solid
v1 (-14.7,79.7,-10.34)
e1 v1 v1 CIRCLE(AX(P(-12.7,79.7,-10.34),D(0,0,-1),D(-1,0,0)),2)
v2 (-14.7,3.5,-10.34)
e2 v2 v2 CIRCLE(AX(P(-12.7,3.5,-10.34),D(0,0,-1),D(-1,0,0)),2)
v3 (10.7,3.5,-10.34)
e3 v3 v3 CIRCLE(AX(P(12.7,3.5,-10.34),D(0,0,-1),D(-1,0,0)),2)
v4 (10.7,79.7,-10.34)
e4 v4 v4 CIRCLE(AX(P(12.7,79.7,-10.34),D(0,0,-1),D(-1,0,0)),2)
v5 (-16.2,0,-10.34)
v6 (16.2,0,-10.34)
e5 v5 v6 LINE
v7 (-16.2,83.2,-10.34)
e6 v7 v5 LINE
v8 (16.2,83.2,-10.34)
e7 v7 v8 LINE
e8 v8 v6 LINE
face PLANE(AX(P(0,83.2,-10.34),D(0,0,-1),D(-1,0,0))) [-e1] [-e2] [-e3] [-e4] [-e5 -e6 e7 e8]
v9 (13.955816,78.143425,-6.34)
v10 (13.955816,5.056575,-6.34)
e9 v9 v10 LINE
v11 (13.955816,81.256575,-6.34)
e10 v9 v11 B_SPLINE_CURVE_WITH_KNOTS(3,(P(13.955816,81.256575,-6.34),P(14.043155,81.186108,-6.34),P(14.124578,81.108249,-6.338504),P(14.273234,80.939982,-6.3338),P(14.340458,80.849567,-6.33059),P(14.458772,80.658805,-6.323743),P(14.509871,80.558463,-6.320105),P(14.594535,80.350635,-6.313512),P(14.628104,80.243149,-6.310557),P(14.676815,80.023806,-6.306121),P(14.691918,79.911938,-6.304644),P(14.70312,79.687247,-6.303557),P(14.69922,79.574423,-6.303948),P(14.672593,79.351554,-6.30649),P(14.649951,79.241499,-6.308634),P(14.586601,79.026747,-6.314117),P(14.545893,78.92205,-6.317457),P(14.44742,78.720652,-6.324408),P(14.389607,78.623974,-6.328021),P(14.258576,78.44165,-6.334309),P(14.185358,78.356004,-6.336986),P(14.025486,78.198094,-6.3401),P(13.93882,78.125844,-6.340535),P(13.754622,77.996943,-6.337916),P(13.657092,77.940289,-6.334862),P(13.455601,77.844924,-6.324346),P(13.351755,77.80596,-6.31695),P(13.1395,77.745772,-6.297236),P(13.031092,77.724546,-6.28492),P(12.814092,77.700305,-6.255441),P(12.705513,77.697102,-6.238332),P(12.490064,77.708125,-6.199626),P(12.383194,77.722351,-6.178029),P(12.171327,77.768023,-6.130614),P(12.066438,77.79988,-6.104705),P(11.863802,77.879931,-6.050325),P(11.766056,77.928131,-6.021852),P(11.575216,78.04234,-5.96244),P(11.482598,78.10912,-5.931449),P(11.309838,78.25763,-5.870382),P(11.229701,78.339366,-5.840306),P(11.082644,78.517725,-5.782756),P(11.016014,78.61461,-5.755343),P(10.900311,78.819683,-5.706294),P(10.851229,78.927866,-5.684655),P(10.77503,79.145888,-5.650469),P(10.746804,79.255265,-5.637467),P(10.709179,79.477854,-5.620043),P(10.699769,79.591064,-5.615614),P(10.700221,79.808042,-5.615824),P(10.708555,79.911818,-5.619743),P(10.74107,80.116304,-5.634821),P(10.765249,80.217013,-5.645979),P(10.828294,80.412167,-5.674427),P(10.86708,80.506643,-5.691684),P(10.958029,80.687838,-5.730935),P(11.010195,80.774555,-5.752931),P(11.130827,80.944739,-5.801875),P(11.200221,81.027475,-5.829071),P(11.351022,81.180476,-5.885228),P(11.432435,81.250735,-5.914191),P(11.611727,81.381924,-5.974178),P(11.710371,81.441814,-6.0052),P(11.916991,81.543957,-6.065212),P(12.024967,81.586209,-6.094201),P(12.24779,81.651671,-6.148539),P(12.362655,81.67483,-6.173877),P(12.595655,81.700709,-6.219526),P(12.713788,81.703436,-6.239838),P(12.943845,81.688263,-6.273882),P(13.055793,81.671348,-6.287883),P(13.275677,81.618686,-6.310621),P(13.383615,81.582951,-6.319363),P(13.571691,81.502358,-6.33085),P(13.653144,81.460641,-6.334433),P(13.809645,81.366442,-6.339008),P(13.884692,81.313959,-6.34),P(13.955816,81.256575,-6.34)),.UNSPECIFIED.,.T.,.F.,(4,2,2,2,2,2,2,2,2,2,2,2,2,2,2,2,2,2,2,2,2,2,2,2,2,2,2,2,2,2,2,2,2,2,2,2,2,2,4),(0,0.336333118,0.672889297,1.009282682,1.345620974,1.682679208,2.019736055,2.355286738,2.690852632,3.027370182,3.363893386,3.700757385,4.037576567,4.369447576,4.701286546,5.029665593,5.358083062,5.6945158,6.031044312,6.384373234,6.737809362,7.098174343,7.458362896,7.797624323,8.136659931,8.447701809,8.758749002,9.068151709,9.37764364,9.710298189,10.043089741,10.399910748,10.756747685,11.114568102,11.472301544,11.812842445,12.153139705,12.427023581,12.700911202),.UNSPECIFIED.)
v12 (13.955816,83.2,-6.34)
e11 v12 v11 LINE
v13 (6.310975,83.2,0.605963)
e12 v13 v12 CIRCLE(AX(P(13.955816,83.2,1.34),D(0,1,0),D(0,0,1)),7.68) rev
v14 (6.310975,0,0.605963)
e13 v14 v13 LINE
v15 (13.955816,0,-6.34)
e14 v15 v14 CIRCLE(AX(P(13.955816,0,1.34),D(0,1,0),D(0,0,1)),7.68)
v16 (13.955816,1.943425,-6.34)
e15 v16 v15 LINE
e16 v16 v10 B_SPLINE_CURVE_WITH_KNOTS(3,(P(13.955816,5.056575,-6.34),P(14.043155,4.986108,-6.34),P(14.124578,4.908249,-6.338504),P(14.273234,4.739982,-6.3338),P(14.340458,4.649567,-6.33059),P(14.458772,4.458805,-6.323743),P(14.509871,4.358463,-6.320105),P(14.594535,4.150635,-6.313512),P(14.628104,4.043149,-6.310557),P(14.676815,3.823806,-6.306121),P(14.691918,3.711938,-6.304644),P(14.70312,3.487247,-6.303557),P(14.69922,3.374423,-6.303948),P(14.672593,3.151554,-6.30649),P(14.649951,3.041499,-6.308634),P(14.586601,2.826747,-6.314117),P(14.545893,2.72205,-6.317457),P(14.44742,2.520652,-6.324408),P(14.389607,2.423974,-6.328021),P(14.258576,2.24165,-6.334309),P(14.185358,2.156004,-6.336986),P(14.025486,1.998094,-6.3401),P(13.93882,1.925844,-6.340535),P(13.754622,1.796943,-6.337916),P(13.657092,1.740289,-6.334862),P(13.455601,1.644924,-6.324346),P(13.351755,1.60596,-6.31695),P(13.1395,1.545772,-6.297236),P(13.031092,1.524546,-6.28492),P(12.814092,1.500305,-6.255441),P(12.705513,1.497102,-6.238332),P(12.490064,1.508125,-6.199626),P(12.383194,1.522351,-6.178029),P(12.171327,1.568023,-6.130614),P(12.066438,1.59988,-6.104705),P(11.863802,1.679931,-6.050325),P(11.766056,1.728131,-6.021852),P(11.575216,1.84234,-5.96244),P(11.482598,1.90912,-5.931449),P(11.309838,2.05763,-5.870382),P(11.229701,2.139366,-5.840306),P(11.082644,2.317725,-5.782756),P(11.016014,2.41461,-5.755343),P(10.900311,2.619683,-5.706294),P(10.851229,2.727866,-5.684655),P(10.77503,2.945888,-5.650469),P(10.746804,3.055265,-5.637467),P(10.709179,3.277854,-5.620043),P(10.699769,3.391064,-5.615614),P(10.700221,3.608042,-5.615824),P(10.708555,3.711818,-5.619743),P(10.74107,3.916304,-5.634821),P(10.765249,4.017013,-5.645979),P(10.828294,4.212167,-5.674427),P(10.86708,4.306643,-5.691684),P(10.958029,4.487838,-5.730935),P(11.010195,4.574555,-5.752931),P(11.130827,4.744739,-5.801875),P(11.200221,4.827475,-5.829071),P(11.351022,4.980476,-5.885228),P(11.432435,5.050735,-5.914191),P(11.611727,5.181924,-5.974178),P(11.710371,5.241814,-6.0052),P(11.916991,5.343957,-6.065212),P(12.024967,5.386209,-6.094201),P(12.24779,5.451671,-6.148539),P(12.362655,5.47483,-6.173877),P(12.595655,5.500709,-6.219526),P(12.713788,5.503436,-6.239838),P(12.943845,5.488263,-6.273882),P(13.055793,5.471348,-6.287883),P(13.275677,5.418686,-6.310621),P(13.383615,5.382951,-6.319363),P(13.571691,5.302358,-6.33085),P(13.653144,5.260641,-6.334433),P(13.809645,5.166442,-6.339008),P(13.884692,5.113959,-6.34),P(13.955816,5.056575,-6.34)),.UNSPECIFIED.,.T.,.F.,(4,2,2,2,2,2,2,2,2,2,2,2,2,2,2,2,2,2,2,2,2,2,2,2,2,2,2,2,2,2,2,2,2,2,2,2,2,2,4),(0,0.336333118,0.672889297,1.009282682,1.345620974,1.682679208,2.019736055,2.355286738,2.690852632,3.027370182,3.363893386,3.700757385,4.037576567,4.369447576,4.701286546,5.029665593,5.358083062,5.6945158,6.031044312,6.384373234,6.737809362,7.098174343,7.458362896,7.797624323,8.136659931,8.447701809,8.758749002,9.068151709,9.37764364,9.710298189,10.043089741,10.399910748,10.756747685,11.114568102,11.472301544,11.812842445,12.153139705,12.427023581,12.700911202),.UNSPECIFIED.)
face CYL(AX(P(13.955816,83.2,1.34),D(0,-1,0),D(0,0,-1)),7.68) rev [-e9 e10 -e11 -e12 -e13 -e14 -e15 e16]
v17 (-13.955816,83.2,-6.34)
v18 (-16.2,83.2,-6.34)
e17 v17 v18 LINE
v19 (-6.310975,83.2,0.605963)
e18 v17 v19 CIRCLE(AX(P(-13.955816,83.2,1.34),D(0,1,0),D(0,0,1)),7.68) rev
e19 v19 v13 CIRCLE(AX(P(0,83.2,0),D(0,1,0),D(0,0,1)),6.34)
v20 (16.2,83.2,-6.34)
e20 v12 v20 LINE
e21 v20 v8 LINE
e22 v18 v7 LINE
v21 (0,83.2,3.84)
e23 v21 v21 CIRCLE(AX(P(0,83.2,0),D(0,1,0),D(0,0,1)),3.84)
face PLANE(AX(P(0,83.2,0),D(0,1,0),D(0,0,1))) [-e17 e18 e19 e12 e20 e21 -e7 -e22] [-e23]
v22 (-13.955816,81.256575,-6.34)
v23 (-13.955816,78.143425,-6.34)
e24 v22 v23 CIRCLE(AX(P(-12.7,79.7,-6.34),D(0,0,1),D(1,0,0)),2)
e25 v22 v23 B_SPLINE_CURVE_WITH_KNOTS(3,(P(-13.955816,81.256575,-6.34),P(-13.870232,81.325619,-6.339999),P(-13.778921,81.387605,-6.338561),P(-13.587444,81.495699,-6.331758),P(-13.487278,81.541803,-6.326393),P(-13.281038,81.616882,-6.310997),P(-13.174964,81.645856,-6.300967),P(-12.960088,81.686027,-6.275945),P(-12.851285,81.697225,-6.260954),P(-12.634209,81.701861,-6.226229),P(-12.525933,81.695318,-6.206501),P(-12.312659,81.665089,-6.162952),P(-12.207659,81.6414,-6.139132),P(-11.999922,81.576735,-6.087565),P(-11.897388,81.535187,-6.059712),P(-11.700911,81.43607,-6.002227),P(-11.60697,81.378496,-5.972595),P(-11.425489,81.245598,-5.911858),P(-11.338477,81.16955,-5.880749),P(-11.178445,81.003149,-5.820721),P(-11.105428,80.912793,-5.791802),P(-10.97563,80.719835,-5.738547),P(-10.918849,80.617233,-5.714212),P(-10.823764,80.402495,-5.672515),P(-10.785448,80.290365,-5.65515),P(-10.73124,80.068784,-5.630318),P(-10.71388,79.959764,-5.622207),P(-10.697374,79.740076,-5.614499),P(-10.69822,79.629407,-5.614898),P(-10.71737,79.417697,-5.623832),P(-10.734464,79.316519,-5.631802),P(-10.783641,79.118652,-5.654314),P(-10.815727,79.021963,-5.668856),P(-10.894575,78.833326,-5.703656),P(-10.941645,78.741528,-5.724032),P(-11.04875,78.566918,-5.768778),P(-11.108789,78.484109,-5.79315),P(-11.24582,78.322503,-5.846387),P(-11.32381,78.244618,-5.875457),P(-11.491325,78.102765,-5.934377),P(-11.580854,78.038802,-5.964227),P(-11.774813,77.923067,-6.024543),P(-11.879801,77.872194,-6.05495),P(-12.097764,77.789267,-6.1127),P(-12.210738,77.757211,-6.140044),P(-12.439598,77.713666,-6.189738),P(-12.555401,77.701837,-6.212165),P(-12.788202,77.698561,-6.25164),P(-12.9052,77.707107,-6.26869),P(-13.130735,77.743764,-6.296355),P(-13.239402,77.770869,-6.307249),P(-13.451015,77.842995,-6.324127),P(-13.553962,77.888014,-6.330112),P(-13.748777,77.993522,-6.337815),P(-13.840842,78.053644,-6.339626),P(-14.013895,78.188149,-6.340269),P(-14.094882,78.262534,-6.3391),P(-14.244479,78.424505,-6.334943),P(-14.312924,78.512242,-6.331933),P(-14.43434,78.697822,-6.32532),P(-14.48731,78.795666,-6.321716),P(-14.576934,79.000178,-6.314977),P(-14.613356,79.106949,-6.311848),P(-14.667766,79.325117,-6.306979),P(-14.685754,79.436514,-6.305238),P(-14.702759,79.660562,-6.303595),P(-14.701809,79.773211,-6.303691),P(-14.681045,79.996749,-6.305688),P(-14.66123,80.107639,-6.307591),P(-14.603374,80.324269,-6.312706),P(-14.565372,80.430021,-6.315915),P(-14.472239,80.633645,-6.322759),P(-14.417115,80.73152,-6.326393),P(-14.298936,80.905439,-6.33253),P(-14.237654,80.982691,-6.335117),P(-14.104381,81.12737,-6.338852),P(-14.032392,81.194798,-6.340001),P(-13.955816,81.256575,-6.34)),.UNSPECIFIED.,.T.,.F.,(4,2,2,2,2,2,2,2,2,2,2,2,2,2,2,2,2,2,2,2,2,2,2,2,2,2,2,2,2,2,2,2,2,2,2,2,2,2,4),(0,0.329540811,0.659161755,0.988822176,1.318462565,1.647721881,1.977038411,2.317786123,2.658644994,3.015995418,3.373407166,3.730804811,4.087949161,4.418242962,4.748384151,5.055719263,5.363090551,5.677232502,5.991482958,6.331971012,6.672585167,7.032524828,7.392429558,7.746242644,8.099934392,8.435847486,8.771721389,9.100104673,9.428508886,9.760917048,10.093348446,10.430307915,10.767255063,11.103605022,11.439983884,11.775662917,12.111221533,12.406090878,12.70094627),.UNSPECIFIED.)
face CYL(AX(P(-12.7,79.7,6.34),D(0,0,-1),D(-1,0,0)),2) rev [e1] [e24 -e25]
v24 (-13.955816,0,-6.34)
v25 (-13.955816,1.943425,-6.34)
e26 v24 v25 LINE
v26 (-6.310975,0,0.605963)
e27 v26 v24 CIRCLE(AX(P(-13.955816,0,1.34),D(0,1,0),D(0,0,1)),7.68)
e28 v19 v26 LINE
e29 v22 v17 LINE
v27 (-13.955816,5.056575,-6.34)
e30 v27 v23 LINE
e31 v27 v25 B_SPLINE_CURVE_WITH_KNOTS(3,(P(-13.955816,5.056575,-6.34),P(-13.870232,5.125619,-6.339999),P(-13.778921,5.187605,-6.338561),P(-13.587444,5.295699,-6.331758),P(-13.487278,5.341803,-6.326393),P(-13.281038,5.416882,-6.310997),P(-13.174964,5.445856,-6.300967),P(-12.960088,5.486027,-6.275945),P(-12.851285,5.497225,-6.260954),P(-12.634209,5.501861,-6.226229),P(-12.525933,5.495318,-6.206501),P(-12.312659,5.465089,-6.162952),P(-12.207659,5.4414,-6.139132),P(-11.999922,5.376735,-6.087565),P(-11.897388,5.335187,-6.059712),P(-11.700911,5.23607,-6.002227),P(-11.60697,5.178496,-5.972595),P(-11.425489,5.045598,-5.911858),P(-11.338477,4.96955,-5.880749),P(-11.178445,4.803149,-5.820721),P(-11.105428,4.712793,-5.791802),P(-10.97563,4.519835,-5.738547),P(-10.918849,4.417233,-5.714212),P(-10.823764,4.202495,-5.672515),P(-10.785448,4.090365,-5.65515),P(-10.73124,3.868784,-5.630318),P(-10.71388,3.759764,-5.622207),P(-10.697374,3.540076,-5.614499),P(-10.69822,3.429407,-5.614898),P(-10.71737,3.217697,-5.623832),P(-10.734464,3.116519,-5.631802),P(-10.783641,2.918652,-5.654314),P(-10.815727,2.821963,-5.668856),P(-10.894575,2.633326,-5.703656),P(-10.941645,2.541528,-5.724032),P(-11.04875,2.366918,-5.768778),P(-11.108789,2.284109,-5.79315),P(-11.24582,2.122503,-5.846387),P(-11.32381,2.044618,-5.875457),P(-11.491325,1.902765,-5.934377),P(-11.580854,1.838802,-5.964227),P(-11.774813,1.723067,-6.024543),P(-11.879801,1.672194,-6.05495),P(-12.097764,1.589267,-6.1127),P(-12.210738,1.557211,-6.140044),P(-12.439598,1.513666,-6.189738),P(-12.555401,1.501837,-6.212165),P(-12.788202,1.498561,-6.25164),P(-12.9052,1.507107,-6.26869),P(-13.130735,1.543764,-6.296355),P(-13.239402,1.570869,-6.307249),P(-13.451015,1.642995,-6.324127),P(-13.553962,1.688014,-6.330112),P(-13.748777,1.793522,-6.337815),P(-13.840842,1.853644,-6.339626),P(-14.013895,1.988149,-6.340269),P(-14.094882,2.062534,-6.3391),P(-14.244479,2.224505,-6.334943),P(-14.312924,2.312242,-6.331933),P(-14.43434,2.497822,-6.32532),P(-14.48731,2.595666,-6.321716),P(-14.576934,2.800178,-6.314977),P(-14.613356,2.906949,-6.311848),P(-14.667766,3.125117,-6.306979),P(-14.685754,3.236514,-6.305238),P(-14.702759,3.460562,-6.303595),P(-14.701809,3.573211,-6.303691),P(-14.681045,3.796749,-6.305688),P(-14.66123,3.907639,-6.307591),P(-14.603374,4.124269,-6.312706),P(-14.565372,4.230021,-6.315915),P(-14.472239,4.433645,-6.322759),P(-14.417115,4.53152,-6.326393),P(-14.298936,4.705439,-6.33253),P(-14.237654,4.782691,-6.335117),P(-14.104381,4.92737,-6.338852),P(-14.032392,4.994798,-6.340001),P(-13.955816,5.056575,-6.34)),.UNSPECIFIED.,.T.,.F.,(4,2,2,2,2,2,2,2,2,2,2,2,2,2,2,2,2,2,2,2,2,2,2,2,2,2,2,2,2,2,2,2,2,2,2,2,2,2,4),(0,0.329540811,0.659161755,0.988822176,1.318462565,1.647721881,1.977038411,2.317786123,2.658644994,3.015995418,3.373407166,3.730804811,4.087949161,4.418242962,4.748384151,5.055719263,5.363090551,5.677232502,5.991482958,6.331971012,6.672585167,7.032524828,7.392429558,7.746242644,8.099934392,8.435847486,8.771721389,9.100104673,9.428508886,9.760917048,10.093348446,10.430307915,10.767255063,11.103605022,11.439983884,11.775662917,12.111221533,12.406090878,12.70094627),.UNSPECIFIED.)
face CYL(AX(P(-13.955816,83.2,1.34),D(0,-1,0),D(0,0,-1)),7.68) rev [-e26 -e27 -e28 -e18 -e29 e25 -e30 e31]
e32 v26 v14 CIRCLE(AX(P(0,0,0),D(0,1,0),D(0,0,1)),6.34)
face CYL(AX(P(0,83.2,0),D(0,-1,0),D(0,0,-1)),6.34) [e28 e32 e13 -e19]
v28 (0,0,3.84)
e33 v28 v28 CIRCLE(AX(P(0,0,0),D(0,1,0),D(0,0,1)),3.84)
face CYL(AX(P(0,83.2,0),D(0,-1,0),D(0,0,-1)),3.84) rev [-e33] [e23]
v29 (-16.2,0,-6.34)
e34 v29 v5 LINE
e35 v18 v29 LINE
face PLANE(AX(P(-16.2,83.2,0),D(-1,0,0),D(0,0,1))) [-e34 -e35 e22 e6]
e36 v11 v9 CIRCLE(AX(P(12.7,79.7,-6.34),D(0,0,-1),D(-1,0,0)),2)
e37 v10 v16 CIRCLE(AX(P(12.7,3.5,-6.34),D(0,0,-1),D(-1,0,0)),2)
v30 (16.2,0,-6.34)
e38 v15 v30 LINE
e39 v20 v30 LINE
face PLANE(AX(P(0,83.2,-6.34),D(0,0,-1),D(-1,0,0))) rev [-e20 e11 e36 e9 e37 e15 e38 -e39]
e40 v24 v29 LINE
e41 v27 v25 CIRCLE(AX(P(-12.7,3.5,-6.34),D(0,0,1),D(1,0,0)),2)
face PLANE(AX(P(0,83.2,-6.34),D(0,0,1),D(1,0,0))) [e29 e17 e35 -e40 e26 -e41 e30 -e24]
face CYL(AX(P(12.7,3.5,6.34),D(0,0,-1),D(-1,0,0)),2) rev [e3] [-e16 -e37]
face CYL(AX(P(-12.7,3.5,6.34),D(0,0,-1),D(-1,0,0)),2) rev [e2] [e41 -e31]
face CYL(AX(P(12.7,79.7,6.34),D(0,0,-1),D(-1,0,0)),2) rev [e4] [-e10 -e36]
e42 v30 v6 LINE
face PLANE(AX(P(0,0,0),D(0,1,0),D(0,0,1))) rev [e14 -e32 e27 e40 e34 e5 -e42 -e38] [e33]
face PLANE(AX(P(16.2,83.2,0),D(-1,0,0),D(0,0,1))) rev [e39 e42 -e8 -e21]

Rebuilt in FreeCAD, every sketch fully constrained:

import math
import FreeCAD as App
import Part
import Sketcher
Q = App.Units.Quantity


def edges_at(feature, points):
    """Names of the edges that pass closest to the given points."""
    edges = feature.Shape.Edges
    near = lambda p: min(range(len(edges)), key=lambda i: edges[i].distToShape(Part.Vertex(*p))[0])
    return sorted({f"Edge{near(p) + 1}" for p in points})

doc = App.newDocument("Part")
body = doc.addObject("PartDesign::Body", "Body")

sketch1 = body.newObject("Sketcher::SketchObject", "Sketch")
sketch1.AttachmentSupport = (doc.getObject("XZ_Plane"), [""])
sketch1.MapMode = "FlatFace"
sketch1.addGeometry([
    Part.LineSegment(App.Vector(16.2, -10.3, 0), App.Vector(-16.2, -10.3, 0)),
    Part.LineSegment(App.Vector(-16.2, -10.3, 0), App.Vector(-16.2, -6.3, 0)),
    Part.LineSegment(App.Vector(-16.2, -6.3, 0), App.Vector(-6.3, -6.3, 0)),
    Part.LineSegment(App.Vector(-6.3, -6.3, 0), App.Vector(-6.3, 0, 0)),
    Part.ArcOfCircle(Part.Circle(App.Vector(0, 0, 0), App.Vector(0, 0, 1), 6.3), math.radians(0), math.radians(180)),
    Part.LineSegment(App.Vector(6.3, 0, 0), App.Vector(6.3, -6.3, 0)),
    Part.LineSegment(App.Vector(6.3, -6.3, 0), App.Vector(16.2, -6.3, 0)),
    Part.LineSegment(App.Vector(16.2, -6.3, 0), App.Vector(16.2, -10.3, 0)),
    Part.Circle(App.Vector(0, 0, 0), App.Vector(0, 0, 1), 3.8),
], False)
sketch1.addConstraint([
    Sketcher.Constraint("Coincident", 0, 2, 1, 1),
    Sketcher.Constraint("Coincident", 1, 2, 2, 1),
    Sketcher.Constraint("Coincident", 2, 2, 3, 1),
    Sketcher.Constraint("Tangent", 3, 2, 4, 2),
    Sketcher.Constraint("Tangent", 4, 1, 5, 1),
    Sketcher.Constraint("Coincident", 5, 2, 6, 1),
    Sketcher.Constraint("Coincident", 6, 2, 7, 1),
    Sketcher.Constraint("Coincident", 7, 2, 0, 1),
    Sketcher.Constraint("Horizontal", 0),
    Sketcher.Constraint("Vertical", 1),
    Sketcher.Constraint("Horizontal", 2),
    Sketcher.Constraint("Vertical", 3),
    Sketcher.Constraint("Vertical", 5),
    Sketcher.Constraint("Horizontal", 6),
    Sketcher.Constraint("Vertical", 7),
    Sketcher.Constraint("Coincident", 4, 3, -1, 1),
    Sketcher.Constraint("Coincident", 8, 3, -1, 1),
    Sketcher.Constraint("Symmetric", 1, 2, 6, 2, -2),
    Sketcher.Constraint("Diameter", 8, Q("7.68 mm")),
    Sketcher.Constraint("DistanceY", 1, 1, 1, 2, Q("4 mm")),
    Sketcher.Constraint("Radius", 4, Q("6.34 mm")),
    Sketcher.Constraint("DistanceX", 0, 2, 0, 1, Q("32.4 mm")),
    Sketcher.Constraint("DistanceY", 3, 1, 3, 2, Q("6.34 mm")),
])
pad1 = body.newObject("PartDesign::Pad", "Pad")
pad1.Profile = sketch1
pad1.Length = 83.2
pad1.Reversed = True
doc.recompute()

fillet = body.newObject("PartDesign::Fillet", "Fillet")
fillet.Base = (pad1, edges_at(pad1, [(-6.34, 41.6, -6.34), (6.34, 41.6, -6.34)]))
fillet.Radius = 7.68

sketch2 = body.newObject("Sketcher::SketchObject", "Sketch001")
sketch2.AttachmentSupport = (doc.getObject("XY_Plane"), [""])
sketch2.MapMode = "FlatFace"
sketch2.AttachmentOffset = App.Placement(App.Vector(0, 0, -20.34), App.Rotation())
sketch2.addGeometry([
    Part.Circle(App.Vector(-12.7, 79.7, 0), App.Vector(0, 0, 1), 2),
    Part.Circle(App.Vector(-12.7, 3.5, 0), App.Vector(0, 0, 1), 2),
    Part.Circle(App.Vector(12.7, 3.5, 0), App.Vector(0, 0, 1), 2),
    Part.Circle(App.Vector(12.7, 79.7, 0), App.Vector(0, 0, 1), 2),
], False)
sketch2.addConstraint([
    Sketcher.Constraint("Equal", 0, 1),
    Sketcher.Constraint("Equal", 1, 2),
    Sketcher.Constraint("Equal", 2, 3),
    Sketcher.Constraint("Symmetric", 1, 3, 2, 3, -2),
    Sketcher.Constraint("Symmetric", 0, 3, 3, 3, -2),
    Sketcher.Constraint("Vertical", 0, 3, 1, 3),
    Sketcher.Constraint("Diameter", 0, Q("4 mm")),
    Sketcher.Constraint("DistanceX", 0, 3, -1, 1, Q("12.7 mm")),
    Sketcher.Constraint("DistanceY", -1, 1, 0, 3, Q("79.7 mm")),
    Sketcher.Constraint("DistanceY", -1, 1, 1, 3, Q("3.5 mm")),
])
pocket1 = body.newObject("PartDesign::Pocket", "Pocket")
pocket1.Profile = sketch2
pocket1.Type = "ThroughAll"
pocket1.Midplane = True

doc.recompute()
